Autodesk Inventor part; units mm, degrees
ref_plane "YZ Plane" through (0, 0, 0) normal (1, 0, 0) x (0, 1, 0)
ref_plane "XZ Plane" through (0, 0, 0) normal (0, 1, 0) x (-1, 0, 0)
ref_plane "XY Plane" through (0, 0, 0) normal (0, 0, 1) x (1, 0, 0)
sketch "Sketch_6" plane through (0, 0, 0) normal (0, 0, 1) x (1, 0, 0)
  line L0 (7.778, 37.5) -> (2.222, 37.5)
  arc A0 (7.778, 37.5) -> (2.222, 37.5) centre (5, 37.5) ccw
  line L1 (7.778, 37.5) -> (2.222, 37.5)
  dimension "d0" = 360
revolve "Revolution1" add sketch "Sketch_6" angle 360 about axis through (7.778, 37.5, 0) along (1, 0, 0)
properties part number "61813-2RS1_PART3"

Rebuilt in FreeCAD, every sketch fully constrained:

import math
import FreeCAD as App
import Part
import Sketcher
from FreeCAD import Vector
Q = App.Units.Quantity

doc = App.newDocument("Part")
body = doc.addObject("PartDesign::Body", "Body")

# Sketch on XY plane
sketch1 = body.newObject("Sketcher::SketchObject", "Sketch")
sketch1.AttachmentSupport = (doc.getObject("XY_Plane"), [""])
sketch1.MapMode = "FlatFace"
sketch1.addGeometry(Part.LineSegment(Vector(2.222, 37.5, 0), Vector(7.778, 37.5, 0)), False)
sketch1.addGeometry(Part.ArcOfCircle(Part.Circle(Vector(5, 37.5, 0), Vector(0, 0, 1), 2.778), math.radians(0), math.radians(180)), False)
sketch1.addGeometry(Part.LineSegment(Vector(2.222, 37.5, 0), Vector(7.778, 37.5, 0)), True)  # axis
sketch1.addConstraint(Sketcher.Constraint("Coincident", 0, 1, 1, 2))
sketch1.addConstraint(Sketcher.Constraint("Coincident", 1, 1, 0, 2))
sketch1.addConstraint(Sketcher.Constraint("Horizontal", 0))
sketch1.addConstraint(Sketcher.Constraint("Horizontal", 2))
sketch1.addConstraint(Sketcher.Constraint("Coincident", 2, 1, 0, 1))
sketch1.addConstraint(Sketcher.Constraint("Horizontal", 1, 3, 0, 1))
sketch1.addConstraint(Sketcher.Constraint("Equal", 0, 2))
sketch1.addConstraint(Sketcher.Constraint("DistanceX", -1, 1, 1, 3, Q("5 mm")))
sketch1.addConstraint(Sketcher.Constraint("Radius", 1, Q("2.778 mm")))
sketch1.addConstraint(Sketcher.Constraint("DistanceY", -1, 1, 1, 3, Q("37.5 mm")))
revolution = body.newObject("PartDesign::Revolution", "Revolution")
revolution.Profile = sketch1
revolution.ReferenceAxis = (sketch1, ["Axis0"])
revolution.Angle = 360

doc.recompute()
